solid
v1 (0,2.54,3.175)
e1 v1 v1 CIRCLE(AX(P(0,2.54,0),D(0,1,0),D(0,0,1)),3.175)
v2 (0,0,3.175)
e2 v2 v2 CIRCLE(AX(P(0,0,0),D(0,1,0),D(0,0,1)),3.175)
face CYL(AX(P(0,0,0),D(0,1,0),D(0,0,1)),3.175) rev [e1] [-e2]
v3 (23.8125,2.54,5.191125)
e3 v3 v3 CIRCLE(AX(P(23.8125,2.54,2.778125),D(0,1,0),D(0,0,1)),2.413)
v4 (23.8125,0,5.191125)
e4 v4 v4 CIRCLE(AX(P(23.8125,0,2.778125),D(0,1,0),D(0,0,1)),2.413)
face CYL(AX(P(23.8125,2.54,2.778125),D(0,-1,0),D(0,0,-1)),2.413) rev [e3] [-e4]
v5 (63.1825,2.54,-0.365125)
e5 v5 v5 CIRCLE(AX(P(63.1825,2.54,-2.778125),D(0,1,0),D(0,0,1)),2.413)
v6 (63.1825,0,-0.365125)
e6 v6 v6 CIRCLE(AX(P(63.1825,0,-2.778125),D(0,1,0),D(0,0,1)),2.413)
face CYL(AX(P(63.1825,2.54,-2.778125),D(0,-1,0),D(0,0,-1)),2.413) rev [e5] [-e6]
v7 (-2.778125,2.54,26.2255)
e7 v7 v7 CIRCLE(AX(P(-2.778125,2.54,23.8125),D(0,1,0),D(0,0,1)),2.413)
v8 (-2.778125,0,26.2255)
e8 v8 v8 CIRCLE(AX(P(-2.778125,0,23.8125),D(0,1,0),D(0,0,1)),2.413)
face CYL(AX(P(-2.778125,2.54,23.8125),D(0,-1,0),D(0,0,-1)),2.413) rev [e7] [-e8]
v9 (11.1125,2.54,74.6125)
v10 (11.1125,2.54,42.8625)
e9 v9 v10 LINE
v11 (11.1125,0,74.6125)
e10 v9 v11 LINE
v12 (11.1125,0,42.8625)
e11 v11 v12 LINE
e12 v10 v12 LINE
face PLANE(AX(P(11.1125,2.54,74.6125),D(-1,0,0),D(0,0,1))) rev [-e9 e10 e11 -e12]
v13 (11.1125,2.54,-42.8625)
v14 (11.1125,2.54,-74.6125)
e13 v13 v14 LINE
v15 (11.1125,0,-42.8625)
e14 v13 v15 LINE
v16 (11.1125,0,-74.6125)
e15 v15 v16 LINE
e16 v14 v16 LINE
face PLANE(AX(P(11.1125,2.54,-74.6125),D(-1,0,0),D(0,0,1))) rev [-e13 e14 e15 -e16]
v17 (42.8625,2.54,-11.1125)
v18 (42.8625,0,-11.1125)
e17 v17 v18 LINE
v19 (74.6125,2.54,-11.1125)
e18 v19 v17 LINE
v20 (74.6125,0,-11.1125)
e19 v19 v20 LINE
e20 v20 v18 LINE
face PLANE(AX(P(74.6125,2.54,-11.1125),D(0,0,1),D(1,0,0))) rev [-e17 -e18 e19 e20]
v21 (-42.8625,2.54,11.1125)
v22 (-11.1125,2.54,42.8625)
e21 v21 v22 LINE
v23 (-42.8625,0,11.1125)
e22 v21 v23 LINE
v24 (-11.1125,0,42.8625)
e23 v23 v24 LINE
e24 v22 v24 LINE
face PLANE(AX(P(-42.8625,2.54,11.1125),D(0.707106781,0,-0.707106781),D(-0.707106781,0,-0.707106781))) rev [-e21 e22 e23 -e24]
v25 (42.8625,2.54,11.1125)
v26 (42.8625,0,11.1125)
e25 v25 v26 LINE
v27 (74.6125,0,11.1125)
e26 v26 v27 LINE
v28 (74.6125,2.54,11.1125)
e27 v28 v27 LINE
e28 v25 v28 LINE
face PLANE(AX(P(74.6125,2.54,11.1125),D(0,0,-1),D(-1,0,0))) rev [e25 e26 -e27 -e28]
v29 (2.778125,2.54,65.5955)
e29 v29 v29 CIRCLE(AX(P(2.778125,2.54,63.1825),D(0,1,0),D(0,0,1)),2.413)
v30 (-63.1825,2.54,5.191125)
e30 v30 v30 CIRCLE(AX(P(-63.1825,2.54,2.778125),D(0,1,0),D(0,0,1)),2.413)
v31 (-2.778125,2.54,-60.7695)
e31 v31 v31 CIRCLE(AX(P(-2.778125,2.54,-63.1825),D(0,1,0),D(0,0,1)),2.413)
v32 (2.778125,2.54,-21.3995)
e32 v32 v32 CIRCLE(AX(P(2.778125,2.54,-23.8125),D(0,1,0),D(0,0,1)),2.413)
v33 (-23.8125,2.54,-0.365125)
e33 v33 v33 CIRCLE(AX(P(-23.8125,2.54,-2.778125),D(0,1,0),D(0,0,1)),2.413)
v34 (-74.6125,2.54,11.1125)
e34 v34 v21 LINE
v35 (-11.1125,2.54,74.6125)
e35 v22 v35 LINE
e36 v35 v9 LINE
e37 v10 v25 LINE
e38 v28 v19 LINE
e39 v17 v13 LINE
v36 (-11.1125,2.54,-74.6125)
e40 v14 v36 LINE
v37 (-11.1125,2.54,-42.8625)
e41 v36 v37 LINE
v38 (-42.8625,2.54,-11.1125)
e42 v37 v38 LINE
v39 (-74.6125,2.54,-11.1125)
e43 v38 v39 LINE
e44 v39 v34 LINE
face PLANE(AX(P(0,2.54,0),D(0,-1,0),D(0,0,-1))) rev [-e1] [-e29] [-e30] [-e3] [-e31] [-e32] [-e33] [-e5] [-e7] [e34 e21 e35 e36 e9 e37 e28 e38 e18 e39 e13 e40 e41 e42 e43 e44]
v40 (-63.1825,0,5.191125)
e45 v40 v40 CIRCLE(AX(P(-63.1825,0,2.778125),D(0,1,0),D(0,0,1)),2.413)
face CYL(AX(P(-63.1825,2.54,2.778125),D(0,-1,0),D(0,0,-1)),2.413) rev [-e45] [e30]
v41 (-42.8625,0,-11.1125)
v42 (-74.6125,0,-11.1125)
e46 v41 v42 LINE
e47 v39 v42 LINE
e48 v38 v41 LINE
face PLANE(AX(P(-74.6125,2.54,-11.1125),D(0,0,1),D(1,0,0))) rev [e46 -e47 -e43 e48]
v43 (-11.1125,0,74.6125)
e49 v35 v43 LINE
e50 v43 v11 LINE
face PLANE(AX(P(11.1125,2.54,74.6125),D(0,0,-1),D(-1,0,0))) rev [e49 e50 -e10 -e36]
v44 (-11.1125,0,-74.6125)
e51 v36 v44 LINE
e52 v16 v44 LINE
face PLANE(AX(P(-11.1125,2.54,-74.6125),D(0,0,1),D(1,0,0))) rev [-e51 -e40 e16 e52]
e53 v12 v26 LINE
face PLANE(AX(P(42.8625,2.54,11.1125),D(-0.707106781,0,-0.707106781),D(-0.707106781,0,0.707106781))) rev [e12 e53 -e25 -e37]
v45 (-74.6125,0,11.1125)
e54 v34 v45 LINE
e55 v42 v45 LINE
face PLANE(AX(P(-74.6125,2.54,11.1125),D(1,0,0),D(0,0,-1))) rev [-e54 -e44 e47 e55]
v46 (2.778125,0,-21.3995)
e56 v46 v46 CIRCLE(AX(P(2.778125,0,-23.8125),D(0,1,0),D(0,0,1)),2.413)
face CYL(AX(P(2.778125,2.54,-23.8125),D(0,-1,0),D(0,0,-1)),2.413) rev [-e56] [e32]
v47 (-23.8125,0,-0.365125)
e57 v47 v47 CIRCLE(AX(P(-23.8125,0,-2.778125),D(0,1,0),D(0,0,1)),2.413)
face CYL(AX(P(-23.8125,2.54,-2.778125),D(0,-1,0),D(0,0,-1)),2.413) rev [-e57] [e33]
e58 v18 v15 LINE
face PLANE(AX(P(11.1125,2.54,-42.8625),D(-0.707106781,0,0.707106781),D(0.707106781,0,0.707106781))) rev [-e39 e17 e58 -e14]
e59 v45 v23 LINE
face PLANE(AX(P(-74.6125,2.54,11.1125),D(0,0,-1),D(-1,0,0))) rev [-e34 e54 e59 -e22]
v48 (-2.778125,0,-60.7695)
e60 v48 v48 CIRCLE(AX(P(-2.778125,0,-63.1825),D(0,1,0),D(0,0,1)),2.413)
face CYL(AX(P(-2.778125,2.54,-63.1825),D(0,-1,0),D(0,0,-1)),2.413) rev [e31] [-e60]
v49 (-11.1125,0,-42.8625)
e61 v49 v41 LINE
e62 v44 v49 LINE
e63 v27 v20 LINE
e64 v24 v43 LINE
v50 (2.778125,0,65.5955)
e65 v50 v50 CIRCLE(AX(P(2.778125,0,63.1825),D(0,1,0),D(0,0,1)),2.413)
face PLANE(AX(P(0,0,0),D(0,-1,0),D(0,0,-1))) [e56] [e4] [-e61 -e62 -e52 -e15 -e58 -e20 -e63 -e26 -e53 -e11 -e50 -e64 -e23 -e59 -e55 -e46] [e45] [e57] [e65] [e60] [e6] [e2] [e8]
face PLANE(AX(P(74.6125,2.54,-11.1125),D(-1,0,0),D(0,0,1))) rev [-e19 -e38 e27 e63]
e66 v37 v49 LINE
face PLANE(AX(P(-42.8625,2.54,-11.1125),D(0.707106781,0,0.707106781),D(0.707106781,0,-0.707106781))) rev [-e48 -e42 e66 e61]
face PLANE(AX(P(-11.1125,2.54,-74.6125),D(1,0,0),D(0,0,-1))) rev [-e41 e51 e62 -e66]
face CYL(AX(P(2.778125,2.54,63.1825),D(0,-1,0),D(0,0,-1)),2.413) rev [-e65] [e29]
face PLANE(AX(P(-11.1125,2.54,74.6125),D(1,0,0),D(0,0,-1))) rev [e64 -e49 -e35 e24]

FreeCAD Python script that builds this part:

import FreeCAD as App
import Part
import Sketcher
Q = App.Units.Quantity


def add_polygon(sketch, points):
    """Adds a closed chain of lines whose ends are joined by coincident constraints."""
    first, n = sketch.GeometryCount, len(points)
    for a, b in zip(points, points[1:] + points[:1]):
        sketch.addGeometry(Part.LineSegment(App.Vector(*a, 0), App.Vector(*b, 0)), False)
    for i in range(n):
        sketch.addConstraint(Sketcher.Constraint("Coincident", first + i, 2, first + (i + 1) % n, 1))

doc = App.newDocument("Part")
params = doc.addObject("Spreadsheet::Sheet", "Params")
for row, (alias, value) in enumerate([
    ("sketch1_diameter", "0.19 in"),
    ("sketch1_width", "1.25 in"),
    ("sketch1_width2", "0.875 in"),
    ("pad1_length", "0.1 in"),
    ("sketch2_diameter", "0.25 in"),
], start=1):
    params.set(f"A{row}", alias)
    params.set(f"B{row}", "=" + value)
    params.setAlias(f"B{row}", alias)

body = doc.addObject("PartDesign::Body", "Body")

# Sketch on XZ plane
sketch1 = body.newObject("Sketcher::SketchObject", "Sketch")
sketch1.AttachmentSupport = (doc.getObject("XZ_Plane"), [""])
sketch1.MapMode = "FlatFace"
add_polygon(sketch1, [(-74.6, -11.1), (-74.6, 11.1), (-42.9, 11.1), (-11.1, 42.9), (-11.1, 74.6), (11.1, 74.6), (11.1, 42.9), (42.9, 11.1), (74.6, 11.1), (74.6, -11.1), (42.9, -11.1), (11.1, -42.9), (11.1, -74.6), (-11.1, -74.6), (-11.1, -42.9), (-42.9, -11.1)])  # lines 0-15
sketch1.addGeometry(Part.Circle(App.Vector(2.8, 63.2, 0), App.Vector(0, 0, 1), 2.4), False)  # 16
sketch1.addGeometry(Part.Circle(App.Vector(23.8, 2.8, 0), App.Vector(0, 0, 1), 2.4), False)  # 17
sketch1.addGeometry(Part.Circle(App.Vector(-2.8, 23.8, 0), App.Vector(0, 0, 1), 2.4), False)  # 18
sketch1.addGeometry(Part.Circle(App.Vector(-63.2, 2.8, 0), App.Vector(0, 0, 1), 2.4), False)  # 19
sketch1.addGeometry(Part.Circle(App.Vector(63.2, -2.8, 0), App.Vector(0, 0, 1), 2.4), False)  # 20
sketch1.addGeometry(Part.Circle(App.Vector(2.8, -23.8, 0), App.Vector(0, 0, 1), 2.4), False)  # 21
sketch1.addGeometry(Part.Circle(App.Vector(-23.8, -2.8, 0), App.Vector(0, 0, 1), 2.4), False)  # 22
sketch1.addGeometry(Part.Circle(App.Vector(-2.8, -63.2, 0), App.Vector(0, 0, 1), 2.4), False)  # 23
sketch1.addConstraint(Sketcher.Constraint("Vertical", 0))
sketch1.addConstraint(Sketcher.Constraint("Horizontal", 1))
sketch1.addConstraint(Sketcher.Constraint("Vertical", 3))
sketch1.addConstraint(Sketcher.Constraint("Horizontal", 4))
sketch1.addConstraint(Sketcher.Constraint("Vertical", 5))
sketch1.addConstraint(Sketcher.Constraint("Horizontal", 7))
sketch1.addConstraint(Sketcher.Constraint("Vertical", 8))
sketch1.addConstraint(Sketcher.Constraint("Horizontal", 9))
sketch1.addConstraint(Sketcher.Constraint("Vertical", 11))
sketch1.addConstraint(Sketcher.Constraint("Horizontal", 12))
sketch1.addConstraint(Sketcher.Constraint("Vertical", 13))
sketch1.addConstraint(Sketcher.Constraint("Horizontal", 15))
sketch1.addConstraint(Sketcher.Constraint("Equal", 16, 17))
sketch1.addConstraint(Sketcher.Constraint("Equal", 17, 18))
sketch1.addConstraint(Sketcher.Constraint("Equal", 18, 19))
sketch1.addConstraint(Sketcher.Constraint("Equal", 19, 20))
sketch1.addConstraint(Sketcher.Constraint("Equal", 20, 21))
sketch1.addConstraint(Sketcher.Constraint("Equal", 21, 22))
sketch1.addConstraint(Sketcher.Constraint("Equal", 22, 23))
sketch1.addConstraint(Sketcher.Constraint("Symmetric", 19, 3, 20, 3, -1, 1))
sketch1.addConstraint(Sketcher.Constraint("Symmetric", 18, 3, 21, 3, -1, 1))
sketch1.addConstraint(Sketcher.Constraint("Symmetric", 17, 3, 22, 3, -1, 1))
sketch1.addConstraint(Sketcher.Constraint("Symmetric", 16, 3, 23, 3, -1, 1))
sketch1.addConstraint(Sketcher.Constraint("Symmetric", 0, 2, 8, 2, -1, 1))
sketch1.addConstraint(Sketcher.Constraint("Symmetric", 2, 2, 10, 2, -1, 1))
sketch1.addConstraint(Sketcher.Constraint("Symmetric", 4, 2, 12, 2, -1, 1))
sketch1.addConstraint(Sketcher.Constraint("Symmetric", 6, 2, 14, 2, -1, 1))
sketch1.addConstraint(Sketcher.Constraint("Symmetric", 2, 2, 5, 2, -2))
sketch1.addConstraint(Sketcher.Constraint("Symmetric", 1, 2, 6, 2, -2))
sketch1.addConstraint(Sketcher.Constraint("Perpendicular", 2, 6))
sketch1.addConstraint(Sketcher.Constraint("Perpendicular", 6, 10))
sketch1.addConstraint(Sketcher.Constraint("Perpendicular", 10, 14))
sketch1.addConstraint(Sketcher.Constraint("Horizontal", 17, 3, 19, 3))
sketch1.addConstraint(Sketcher.Constraint("Vertical", 16, 3, 21, 3))
sketch1.addConstraint(Sketcher.Constraint("Equal", 12, 0))
sketch1.addConstraint(Sketcher.Constraint("Equal", 15, 3))
sketch1.addConstraint(Sketcher.Constraint("Diameter", 16, Q("0.19 in")))
sketch1.addConstraint(Sketcher.Constraint("DistanceX", 0, 2, 22, 3, Q("2 in")))
sketch1.addConstraint(Sketcher.Constraint("DistanceY", 18, 3, 3, 2, Q("2 in")))
sketch1.addConstraint(Sketcher.Constraint("DistanceX", 1, 1, 1, 2, Q("1.25 in")))
sketch1.addConstraint(Sketcher.Constraint("DistanceY", 0, 2, 18, 3, Q("0.5 in")))
sketch1.addConstraint(Sketcher.Constraint("DistanceX", 19, 3, 1, 2, Q("0.8 in")))
sketch1.addConstraint(Sketcher.Constraint("DistanceY", 2, 2, 16, 3, Q("0.8 in")))
sketch1.addConstraint(Sketcher.Constraint("DistanceX", 4, 1, 4, 2, Q("0.875 in")))
sketch1.addConstraint(Sketcher.Constraint("DistanceX", -1, 1, 16, 3, Q("0.109375 in")))
sketch1.addConstraint(Sketcher.Constraint("DistanceY", -1, 1, 17, 3, Q("0.109375 in")))
sketch1.setExpression("Constraints[52]", "Params.sketch1_diameter")
sketch1.setExpression("Constraints[55]", "Params.sketch1_width")
sketch1.setExpression("Constraints[59]", "Params.sketch1_width2")
pad1 = body.newObject("PartDesign::Pad", "Pad")
pad1.Profile = sketch1
pad1.setExpression("Length", "Params.pad1_length")
pad1.Reversed = True

# Sketch on XZ plane
sketch2 = body.newObject("Sketcher::SketchObject", "Sketch001")
sketch2.AttachmentSupport = (doc.getObject("XZ_Plane"), [""])
sketch2.MapMode = "FlatFace"
sketch2.AttachmentOffset = App.Placement(App.Vector(0, 0, -0.1 * 25.4), App.Rotation())
sketch2.addGeometry(Part.Circle(App.Vector(0, 0, 0), App.Vector(0, 0, 1), 3.2), False)
sketch2.addConstraint(Sketcher.Constraint("Coincident", 0, 3, -1, 1))
sketch2.addConstraint(Sketcher.Constraint("Diameter", 0, Q("0.25 in")))
sketch2.setExpression("Constraints[1]", "Params.sketch2_diameter")
pocket1 = body.newObject("PartDesign::Pocket", "Pocket")
pocket1.Profile = sketch2
pocket1.Type = "ThroughAll"
pocket1.Reversed = True

doc.recompute()
